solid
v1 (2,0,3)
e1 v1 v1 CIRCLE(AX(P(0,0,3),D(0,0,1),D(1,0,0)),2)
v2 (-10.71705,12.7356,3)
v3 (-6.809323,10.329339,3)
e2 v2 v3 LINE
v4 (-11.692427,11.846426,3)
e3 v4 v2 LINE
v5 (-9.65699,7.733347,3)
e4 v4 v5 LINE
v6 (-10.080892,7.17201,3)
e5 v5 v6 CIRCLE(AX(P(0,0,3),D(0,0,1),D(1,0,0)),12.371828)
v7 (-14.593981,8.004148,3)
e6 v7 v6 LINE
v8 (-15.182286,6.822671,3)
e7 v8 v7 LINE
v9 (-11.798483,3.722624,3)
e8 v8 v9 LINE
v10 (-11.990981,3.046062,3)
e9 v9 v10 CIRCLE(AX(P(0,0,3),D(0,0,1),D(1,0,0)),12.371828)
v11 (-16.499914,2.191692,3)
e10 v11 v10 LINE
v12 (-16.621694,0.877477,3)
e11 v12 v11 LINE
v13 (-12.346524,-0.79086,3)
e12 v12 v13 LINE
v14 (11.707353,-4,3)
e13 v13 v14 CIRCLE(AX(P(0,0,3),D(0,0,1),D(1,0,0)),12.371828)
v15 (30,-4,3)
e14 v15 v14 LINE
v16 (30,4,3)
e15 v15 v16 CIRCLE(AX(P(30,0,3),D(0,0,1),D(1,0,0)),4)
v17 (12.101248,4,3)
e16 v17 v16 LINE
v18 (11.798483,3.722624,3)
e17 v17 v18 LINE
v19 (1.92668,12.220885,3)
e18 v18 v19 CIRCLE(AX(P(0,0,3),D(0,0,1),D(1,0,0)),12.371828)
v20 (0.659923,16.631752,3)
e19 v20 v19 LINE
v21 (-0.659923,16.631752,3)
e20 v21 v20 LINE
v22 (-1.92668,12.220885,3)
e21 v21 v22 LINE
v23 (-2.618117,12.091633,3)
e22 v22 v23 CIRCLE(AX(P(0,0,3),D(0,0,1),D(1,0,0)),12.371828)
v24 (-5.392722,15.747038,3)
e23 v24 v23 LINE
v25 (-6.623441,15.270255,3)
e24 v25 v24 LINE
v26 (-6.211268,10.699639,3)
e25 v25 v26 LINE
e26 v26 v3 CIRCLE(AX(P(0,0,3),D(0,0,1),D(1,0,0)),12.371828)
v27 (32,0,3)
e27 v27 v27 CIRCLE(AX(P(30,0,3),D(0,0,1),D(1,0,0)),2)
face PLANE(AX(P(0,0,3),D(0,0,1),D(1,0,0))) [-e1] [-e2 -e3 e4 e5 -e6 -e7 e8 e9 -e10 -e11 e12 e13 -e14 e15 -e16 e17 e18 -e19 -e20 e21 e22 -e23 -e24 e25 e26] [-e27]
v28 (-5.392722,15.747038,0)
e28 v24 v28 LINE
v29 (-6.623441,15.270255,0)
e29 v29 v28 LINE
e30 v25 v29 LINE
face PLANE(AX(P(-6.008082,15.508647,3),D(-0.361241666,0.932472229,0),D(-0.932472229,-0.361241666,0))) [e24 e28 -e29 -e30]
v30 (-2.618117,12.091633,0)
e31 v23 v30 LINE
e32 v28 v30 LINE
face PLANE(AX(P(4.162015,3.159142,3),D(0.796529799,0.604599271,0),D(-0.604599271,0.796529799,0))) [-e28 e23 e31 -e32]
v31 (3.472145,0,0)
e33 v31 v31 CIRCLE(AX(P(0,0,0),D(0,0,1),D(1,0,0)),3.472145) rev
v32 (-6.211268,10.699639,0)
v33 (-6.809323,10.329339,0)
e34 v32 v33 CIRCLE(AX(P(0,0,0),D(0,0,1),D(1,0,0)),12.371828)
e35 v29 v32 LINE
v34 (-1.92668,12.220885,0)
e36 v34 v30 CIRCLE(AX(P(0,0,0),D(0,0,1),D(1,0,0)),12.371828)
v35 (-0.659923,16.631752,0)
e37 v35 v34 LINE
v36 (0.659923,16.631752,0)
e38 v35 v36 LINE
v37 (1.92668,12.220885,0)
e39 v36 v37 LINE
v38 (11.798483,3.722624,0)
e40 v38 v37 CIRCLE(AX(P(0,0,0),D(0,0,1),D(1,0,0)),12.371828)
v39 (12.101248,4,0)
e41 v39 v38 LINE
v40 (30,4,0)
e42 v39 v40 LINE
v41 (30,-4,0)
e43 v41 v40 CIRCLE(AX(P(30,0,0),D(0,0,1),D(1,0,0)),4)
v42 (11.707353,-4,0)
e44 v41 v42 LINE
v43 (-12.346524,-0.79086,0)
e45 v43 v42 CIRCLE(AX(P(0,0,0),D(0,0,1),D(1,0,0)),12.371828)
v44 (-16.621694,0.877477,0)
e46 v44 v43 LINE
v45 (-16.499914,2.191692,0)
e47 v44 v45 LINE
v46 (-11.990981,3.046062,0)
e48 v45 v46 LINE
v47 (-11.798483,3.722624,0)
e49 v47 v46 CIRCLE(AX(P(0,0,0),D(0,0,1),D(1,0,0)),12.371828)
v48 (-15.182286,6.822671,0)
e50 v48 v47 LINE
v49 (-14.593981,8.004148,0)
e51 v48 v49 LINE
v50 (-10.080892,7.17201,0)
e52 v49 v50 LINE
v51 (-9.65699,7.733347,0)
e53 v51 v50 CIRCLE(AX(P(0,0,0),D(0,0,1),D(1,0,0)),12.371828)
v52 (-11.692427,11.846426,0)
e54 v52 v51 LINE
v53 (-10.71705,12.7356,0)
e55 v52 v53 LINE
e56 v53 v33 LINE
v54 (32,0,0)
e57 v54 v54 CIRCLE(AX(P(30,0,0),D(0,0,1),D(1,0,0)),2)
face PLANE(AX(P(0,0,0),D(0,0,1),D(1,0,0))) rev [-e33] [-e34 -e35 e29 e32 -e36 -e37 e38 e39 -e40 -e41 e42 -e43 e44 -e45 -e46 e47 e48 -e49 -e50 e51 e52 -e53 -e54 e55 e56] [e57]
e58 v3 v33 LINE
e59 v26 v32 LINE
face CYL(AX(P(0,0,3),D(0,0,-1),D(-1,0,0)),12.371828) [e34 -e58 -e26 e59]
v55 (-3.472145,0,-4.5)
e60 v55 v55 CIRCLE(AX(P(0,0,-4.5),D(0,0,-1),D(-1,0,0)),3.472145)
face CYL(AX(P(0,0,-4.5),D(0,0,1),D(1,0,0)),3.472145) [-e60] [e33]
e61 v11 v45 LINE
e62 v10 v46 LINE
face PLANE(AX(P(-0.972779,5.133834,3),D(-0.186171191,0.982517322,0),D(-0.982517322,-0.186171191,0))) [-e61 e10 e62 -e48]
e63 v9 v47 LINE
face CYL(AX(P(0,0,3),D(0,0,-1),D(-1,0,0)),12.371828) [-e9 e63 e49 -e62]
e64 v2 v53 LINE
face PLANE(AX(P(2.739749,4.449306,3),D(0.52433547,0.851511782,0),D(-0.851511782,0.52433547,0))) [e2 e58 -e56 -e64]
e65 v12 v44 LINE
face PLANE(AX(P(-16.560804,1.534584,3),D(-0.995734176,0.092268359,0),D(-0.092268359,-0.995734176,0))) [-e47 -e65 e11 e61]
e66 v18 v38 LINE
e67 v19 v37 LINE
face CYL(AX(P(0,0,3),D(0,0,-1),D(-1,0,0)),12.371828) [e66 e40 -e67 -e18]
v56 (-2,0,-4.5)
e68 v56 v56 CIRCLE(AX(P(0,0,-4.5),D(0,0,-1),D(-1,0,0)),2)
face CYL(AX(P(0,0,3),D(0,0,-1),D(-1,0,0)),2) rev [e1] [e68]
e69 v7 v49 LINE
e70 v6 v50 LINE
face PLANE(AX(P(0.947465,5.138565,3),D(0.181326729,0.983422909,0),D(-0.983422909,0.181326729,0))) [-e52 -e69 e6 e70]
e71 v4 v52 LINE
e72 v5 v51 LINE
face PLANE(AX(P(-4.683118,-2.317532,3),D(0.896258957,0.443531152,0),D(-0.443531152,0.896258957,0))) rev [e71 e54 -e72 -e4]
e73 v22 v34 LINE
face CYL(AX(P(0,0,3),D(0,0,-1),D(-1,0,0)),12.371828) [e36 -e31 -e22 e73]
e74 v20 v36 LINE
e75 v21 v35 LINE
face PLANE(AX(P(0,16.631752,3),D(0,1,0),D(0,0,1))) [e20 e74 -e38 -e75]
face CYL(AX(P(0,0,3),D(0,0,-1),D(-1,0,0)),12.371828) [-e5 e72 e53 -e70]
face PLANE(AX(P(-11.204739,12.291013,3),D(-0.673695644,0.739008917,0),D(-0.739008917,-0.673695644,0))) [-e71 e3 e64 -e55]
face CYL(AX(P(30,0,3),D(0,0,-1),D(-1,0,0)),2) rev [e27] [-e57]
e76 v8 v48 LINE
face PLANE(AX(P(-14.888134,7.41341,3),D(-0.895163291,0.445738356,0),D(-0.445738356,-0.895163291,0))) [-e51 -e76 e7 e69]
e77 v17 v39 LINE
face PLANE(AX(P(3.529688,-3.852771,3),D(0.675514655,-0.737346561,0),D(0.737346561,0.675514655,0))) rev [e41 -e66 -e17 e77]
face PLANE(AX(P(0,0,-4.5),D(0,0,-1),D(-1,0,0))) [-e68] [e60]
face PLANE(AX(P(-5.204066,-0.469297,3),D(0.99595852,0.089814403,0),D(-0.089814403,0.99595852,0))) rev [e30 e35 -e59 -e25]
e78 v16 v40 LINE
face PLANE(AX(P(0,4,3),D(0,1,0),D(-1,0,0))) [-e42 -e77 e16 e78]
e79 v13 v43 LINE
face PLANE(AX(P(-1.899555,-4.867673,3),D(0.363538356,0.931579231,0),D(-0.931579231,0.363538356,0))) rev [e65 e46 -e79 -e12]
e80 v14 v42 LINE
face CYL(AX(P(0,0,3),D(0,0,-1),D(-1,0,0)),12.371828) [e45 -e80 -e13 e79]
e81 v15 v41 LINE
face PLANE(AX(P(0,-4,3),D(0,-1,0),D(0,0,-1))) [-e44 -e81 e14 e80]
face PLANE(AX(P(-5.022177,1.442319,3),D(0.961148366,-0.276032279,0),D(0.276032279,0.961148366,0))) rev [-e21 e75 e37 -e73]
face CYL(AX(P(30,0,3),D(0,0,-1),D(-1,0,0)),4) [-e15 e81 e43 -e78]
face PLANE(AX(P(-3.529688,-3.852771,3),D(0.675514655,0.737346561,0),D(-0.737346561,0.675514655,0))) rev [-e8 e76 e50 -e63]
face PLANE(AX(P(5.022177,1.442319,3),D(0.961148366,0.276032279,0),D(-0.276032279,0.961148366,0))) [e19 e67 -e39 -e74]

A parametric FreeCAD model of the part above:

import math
import FreeCAD as App
import Part
import Sketcher
from FreeCAD import Vector
Q = App.Units.Quantity

doc = App.newDocument("Part")
params = doc.addObject("Spreadsheet::Sheet", "Params")
for row, (alias, value) in enumerate([
    ("sketch1_diameter", "4 mm"),
    ("sketch1_radius", "4 mm"),
    ("pad1_length", "3 mm"),
    ("sketch2_diameter", "4 mm"),
    ("pad2_length", "4.5 mm"),
], start=1):
    params.set(f"A{row}", alias)
    params.set(f"B{row}", "=" + value)
    params.setAlias(f"B{row}", alias)

body = doc.addObject("PartDesign::Body", "Body")

# Sketch on XY plane
sketch1 = doc.addObject("Sketcher::SketchObject", "Sketch")
body.addObject(sketch1)
sketch1.AttachmentSupport = (doc.XY_Plane, [""])
sketch1.MapMode = "FlatFace"
sketch1.addGeometry(Part.LineSegment(Vector(-11.99, 3.05, 0), Vector(-16.5, 2.19, 0)), False)
sketch1.addGeometry(Part.LineSegment(Vector(-16.5, 2.19, 0), Vector(-16.62, 0.88, 0)), False)
sketch1.addGeometry(Part.LineSegment(Vector(-16.62, 0.88, 0), Vector(-12.35, -0.79, 0)), False)
sketch1.addGeometry(Part.ArcOfCircle(Part.Circle(Vector(0, 0, 0), Vector(0, 0, 1), 12.37), math.radians(-176), math.radians(-19)), False)
sketch1.addGeometry(Part.LineSegment(Vector(11.71, -4, 0), Vector(30, -4, 0)), False)
sketch1.addGeometry(Part.ArcOfCircle(Part.Circle(Vector(30, 0, 0), Vector(0, 0, 1), 4), math.radians(-90), math.radians(90)), False)
sketch1.addGeometry(Part.LineSegment(Vector(30, 4, 0), Vector(12.1, 4, 0)), False)
sketch1.addGeometry(Part.LineSegment(Vector(12.1, 4, 0), Vector(11.8, 3.72, 0)), False)
sketch1.addGeometry(Part.ArcOfCircle(Part.Circle(Vector(0, 0, 0), Vector(0, 0, 1), 12.37), math.radians(18), math.radians(81)), False)
sketch1.addGeometry(Part.LineSegment(Vector(1.93, 12.22, 0), Vector(0.66, 16.63, 0)), False)
sketch1.addGeometry(Part.LineSegment(Vector(0.66, 16.63, 0), Vector(-0.66, 16.63, 0)), False)
sketch1.addGeometry(Part.LineSegment(Vector(-0.66, 16.63, 0), Vector(-1.93, 12.22, 0)), False)
sketch1.addGeometry(Part.ArcOfCircle(Part.Circle(Vector(0, 0, 0), Vector(0, 0, 1), 12.37), math.radians(98.96), math.radians(102.22)), False)
sketch1.addGeometry(Part.LineSegment(Vector(-2.62, 12.09, 0), Vector(-5.39, 15.75, 0)), False)
sketch1.addGeometry(Part.LineSegment(Vector(-5.39, 15.75, 0), Vector(-6.62, 15.27, 0)), False)
sketch1.addGeometry(Part.LineSegment(Vector(-6.62, 15.27, 0), Vector(-6.21, 10.7, 0)), False)
sketch1.addGeometry(Part.ArcOfCircle(Part.Circle(Vector(0, 0, 0), Vector(0, 0, 1), 12.37), math.radians(120.14), math.radians(123.39)), False)
sketch1.addGeometry(Part.LineSegment(Vector(-6.81, 10.33, 0), Vector(-10.72, 12.74, 0)), False)
sketch1.addGeometry(Part.LineSegment(Vector(-10.72, 12.74, 0), Vector(-11.69, 11.85, 0)), False)
sketch1.addGeometry(Part.LineSegment(Vector(-11.69, 11.85, 0), Vector(-9.66, 7.73, 0)), False)
sketch1.addGeometry(Part.ArcOfCircle(Part.Circle(Vector(0, 0, 0), Vector(0, 0, 1), 12.37), math.radians(141.31), math.radians(144.57)), False)
sketch1.addGeometry(Part.LineSegment(Vector(-10.08, 7.17, 0), Vector(-14.59, 8, 0)), False)
sketch1.addGeometry(Part.LineSegment(Vector(-14.59, 8, 0), Vector(-15.18, 6.82, 0)), False)
sketch1.addGeometry(Part.LineSegment(Vector(-15.18, 6.82, 0), Vector(-11.8, 3.72, 0)), False)
sketch1.addGeometry(Part.ArcOfCircle(Part.Circle(Vector(0, 0, 0), Vector(0, 0, 1), 12.37), math.radians(162.49), math.radians(165.75)), False)
sketch1.addGeometry(Part.Circle(Vector(0, 0, 0), Vector(0, 0, 1), 2), False)
sketch1.addGeometry(Part.Circle(Vector(30, 0, 0), Vector(0, 0, 1), 2), False)
sketch1.addConstraint(Sketcher.Constraint("Coincident", 0, 2, 1, 1))
sketch1.addConstraint(Sketcher.Constraint("Coincident", 1, 2, 2, 1))
sketch1.addConstraint(Sketcher.Constraint("Coincident", 2, 2, 3, 1))
sketch1.addConstraint(Sketcher.Constraint("Coincident", 3, 2, 4, 1))
sketch1.addConstraint(Sketcher.Constraint("Tangent", 4, 2, 5, 1))
sketch1.addConstraint(Sketcher.Constraint("Tangent", 5, 2, 6, 1))
sketch1.addConstraint(Sketcher.Constraint("Coincident", 6, 2, 7, 1))
sketch1.addConstraint(Sketcher.Constraint("Coincident", 7, 2, 8, 1))
sketch1.addConstraint(Sketcher.Constraint("Coincident", 8, 2, 9, 1))
sketch1.addConstraint(Sketcher.Constraint("Coincident", 9, 2, 10, 1))
sketch1.addConstraint(Sketcher.Constraint("Coincident", 10, 2, 11, 1))
sketch1.addConstraint(Sketcher.Constraint("Coincident", 11, 2, 12, 1))
sketch1.addConstraint(Sketcher.Constraint("Coincident", 12, 2, 13, 1))
sketch1.addConstraint(Sketcher.Constraint("Coincident", 13, 2, 14, 1))
sketch1.addConstraint(Sketcher.Constraint("Coincident", 14, 2, 15, 1))
sketch1.addConstraint(Sketcher.Constraint("Coincident", 15, 2, 16, 1))
sketch1.addConstraint(Sketcher.Constraint("Coincident", 16, 2, 17, 1))
sketch1.addConstraint(Sketcher.Constraint("Coincident", 17, 2, 18, 1))
sketch1.addConstraint(Sketcher.Constraint("Coincident", 18, 2, 19, 1))
sketch1.addConstraint(Sketcher.Constraint("Coincident", 19, 2, 20, 1))
sketch1.addConstraint(Sketcher.Constraint("Coincident", 20, 2, 21, 1))
sketch1.addConstraint(Sketcher.Constraint("Coincident", 21, 2, 22, 1))
sketch1.addConstraint(Sketcher.Constraint("Coincident", 22, 2, 23, 1))
sketch1.addConstraint(Sketcher.Constraint("Coincident", 23, 2, 24, 1))
sketch1.addConstraint(Sketcher.Constraint("Coincident", 24, 2, 0, 1))
sketch1.addConstraint(Sketcher.Constraint("Horizontal", 4))
sketch1.addConstraint(Sketcher.Constraint("Horizontal", 6))
sketch1.addConstraint(Sketcher.Constraint("Horizontal", 10))
sketch1.addConstraint(Sketcher.Constraint("Coincident", 3, 3, -1, 1))
sketch1.addConstraint(Sketcher.Constraint("Coincident", 8, 3, -1, 1))
sketch1.addConstraint(Sketcher.Constraint("Coincident", 12, 3, -1, 1))
sketch1.addConstraint(Sketcher.Constraint("Coincident", 16, 3, -1, 1))
sketch1.addConstraint(Sketcher.Constraint("Coincident", 20, 3, -1, 1))
sketch1.addConstraint(Sketcher.Constraint("Coincident", 24, 3, -1, 1))
sketch1.addConstraint(Sketcher.Constraint("Coincident", 25, 3, -1, 1))
sketch1.addConstraint(Sketcher.Constraint("Coincident", 26, 3, 5, 3))
sketch1.addConstraint(Sketcher.Constraint("Equal", 3, 8))
sketch1.addConstraint(Sketcher.Constraint("Equal", 8, 12))
sketch1.addConstraint(Sketcher.Constraint("Equal", 12, 16))
sketch1.addConstraint(Sketcher.Constraint("Equal", 16, 20))
sketch1.addConstraint(Sketcher.Constraint("Equal", 20, 24))
sketch1.addConstraint(Sketcher.Constraint("Equal", 25, 26))
sketch1.addConstraint(Sketcher.Constraint("PointOnObject", 5, 3, -1))
sketch1.addConstraint(Sketcher.Constraint("Horizontal", 8, 2, 11, 2))
sketch1.addConstraint(Sketcher.Constraint("Horizontal", 7, 2, 23, 2))
sketch1.addConstraint(Sketcher.Constraint("Equal", 0, 2))
sketch1.addConstraint(Sketcher.Constraint("Equal", 2, 9))
sketch1.addConstraint(Sketcher.Constraint("Equal", 9, 11))
sketch1.addConstraint(Sketcher.Constraint("Equal", 11, 13))
sketch1.addConstraint(Sketcher.Constraint("Equal", 1, 14))
sketch1.addConstraint(Sketcher.Constraint("Equal", 13, 15))
sketch1.addConstraint(Sketcher.Constraint("Equal", 15, 17))
sketch1.addConstraint(Sketcher.Constraint("Equal", 14, 18))
sketch1.addConstraint(Sketcher.Constraint("Equal", 17, 19))
sketch1.addConstraint(Sketcher.Constraint("Equal", 19, 21))
sketch1.addConstraint(Sketcher.Constraint("Equal", 18, 22))
sketch1.addConstraint(Sketcher.Constraint("Equal", 21, 23))
sketch1.addConstraint(Sketcher.Constraint("Diameter", 25, 4.0))
sketch1.addConstraint(Sketcher.Constraint("Radius", 5, 4.0))
sketch1.addConstraint(Sketcher.Constraint("DistanceX", -1, 1, 5, 3, 30.0))
sketch1.addConstraint(Sketcher.Constraint("Angle", 13, Q("127.200011 deg")))
sketch1.addConstraint(Sketcher.Constraint("Radius", 3, 12.371828))
sketch1.addConstraint(Sketcher.Constraint("DistanceY", -1, 1, 17, 2, 12.7356))
sketch1.addConstraint(Sketcher.Constraint("DistanceX", 13, 2, 10, 2, 4.7328))
sketch1.addConstraint(Sketcher.Constraint("DistanceY", 15, 2, 13, 2, 5.0474))
sketch1.addConstraint(Sketcher.Constraint("DistanceY", 16, 2, 15, 2, 0.3703))
sketch1.addConstraint(Sketcher.Constraint("DistanceX", 16, 2, 13, 2, 1.416601))
sketch1.addConstraint(Sketcher.Constraint("DistanceX", 20, 2, 19, 2, 0.423902))
sketch1.addConstraint(Sketcher.Constraint("DistanceY", 19, 2, 21, 2, 0.270801))
sketch1.addConstraint(Sketcher.Constraint("DistanceX", 24, 2, 23, 2, 0.192499))
sketch1.addConstraint(Sketcher.Constraint("DistanceX", 6, 2, 6, 1, 17.898752))
sketch1.addConstraint(Sketcher.Constraint("DistanceX", 10, 2, 10, 1, 1.319845))
sketch1.addConstraint(Sketcher.Constraint("DistanceY", -1, 1, 0, 2, 2.191692))
sketch1.addConstraint(Sketcher.Constraint("DistanceY", 2, 2, -1, 1, 0.79086))
sketch1.addConstraint(Sketcher.Constraint("DistanceX", -1, 1, 8, 2, 1.92668))
sketch1.addConstraint(Sketcher.Constraint("DistanceX", 14, 2, -1, 1, 6.623441))
sketch1.addConstraint(Sketcher.Constraint("DistanceX", 19, 2, -1, 1, 9.65699))
sketch1.addConstraint(Sketcher.Constraint("DistanceY", -1, 1, 22, 2, 6.822671))
sketch1.setExpression("Constraints[57]", "Params.sketch1_diameter")
sketch1.setExpression("Constraints[58]", "Params.sketch1_radius")
pad1 = doc.addObject("PartDesign::Pad", "Pad")
body.addObject(pad1)
pad1.Profile = sketch1
pad1.setExpression("Length", "Params.pad1_length")

# Sketch on XY plane
sketch2 = doc.addObject("Sketcher::SketchObject", "Sketch001")
body.addObject(sketch2)
sketch2.AttachmentSupport = (doc.XY_Plane, [""])
sketch2.MapMode = "FlatFace"
sketch2.AttachmentOffset = App.Placement(Vector(0, 0, -4.5), App.Rotation())
sketch2.addGeometry(Part.Circle(Vector(0, 0, 0), Vector(0, 0, 1), 3.5), False)
sketch2.addGeometry(Part.Circle(Vector(0, 0, 0), Vector(0, 0, 1), 2), False)
sketch2.addConstraint(Sketcher.Constraint("Coincident", 0, 3, -1, 1))
sketch2.addConstraint(Sketcher.Constraint("Coincident", 1, 3, -1, 1))
sketch2.addConstraint(Sketcher.Constraint("Diameter", 1, 4.0))
sketch2.addConstraint(Sketcher.Constraint("Diameter", 0, 6.94429))
sketch2.setExpression("Constraints[2]", "Params.sketch2_diameter")
pad2 = doc.addObject("PartDesign::Pad", "Pad001")
body.addObject(pad2)
pad2.Profile = sketch2
pad2.setExpression("Length", "Params.pad2_length")

doc.recompute()
